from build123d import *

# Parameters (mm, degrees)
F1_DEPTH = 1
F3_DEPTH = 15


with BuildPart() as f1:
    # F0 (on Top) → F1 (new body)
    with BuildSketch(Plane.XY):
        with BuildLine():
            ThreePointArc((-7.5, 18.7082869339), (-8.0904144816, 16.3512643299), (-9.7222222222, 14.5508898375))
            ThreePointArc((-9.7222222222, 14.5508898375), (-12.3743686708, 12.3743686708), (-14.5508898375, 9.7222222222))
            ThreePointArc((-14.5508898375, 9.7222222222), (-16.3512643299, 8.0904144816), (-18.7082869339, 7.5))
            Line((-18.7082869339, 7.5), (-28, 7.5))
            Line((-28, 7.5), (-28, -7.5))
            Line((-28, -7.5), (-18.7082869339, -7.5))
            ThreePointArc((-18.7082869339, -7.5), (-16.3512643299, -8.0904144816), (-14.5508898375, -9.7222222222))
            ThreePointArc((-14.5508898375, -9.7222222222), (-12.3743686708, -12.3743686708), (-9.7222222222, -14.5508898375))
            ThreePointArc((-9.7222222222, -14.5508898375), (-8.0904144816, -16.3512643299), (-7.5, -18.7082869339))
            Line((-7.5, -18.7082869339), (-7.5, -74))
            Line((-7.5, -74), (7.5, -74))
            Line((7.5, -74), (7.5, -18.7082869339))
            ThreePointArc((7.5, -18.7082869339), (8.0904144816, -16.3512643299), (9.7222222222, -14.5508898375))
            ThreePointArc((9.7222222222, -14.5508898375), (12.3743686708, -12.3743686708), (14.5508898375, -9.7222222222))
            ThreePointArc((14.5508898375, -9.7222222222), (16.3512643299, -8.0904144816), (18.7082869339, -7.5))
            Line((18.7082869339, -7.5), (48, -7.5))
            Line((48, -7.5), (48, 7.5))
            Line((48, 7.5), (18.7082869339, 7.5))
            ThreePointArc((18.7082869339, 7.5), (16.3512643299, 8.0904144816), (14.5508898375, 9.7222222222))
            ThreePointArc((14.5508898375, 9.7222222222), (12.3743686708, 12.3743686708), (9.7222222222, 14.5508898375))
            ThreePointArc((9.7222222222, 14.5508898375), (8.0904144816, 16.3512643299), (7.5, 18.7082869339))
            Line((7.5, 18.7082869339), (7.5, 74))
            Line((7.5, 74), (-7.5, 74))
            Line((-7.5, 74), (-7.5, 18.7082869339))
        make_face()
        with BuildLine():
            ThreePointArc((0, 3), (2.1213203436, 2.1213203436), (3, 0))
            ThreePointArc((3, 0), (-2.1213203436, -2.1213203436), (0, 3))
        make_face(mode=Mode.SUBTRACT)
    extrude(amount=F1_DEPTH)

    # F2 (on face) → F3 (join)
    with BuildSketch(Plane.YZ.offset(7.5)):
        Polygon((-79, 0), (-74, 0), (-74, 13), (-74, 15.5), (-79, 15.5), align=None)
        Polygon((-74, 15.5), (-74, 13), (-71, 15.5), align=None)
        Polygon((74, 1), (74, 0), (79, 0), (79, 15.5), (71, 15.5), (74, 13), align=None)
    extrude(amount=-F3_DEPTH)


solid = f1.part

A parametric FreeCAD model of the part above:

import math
import FreeCAD as App
import Part
import Sketcher

V = App.Vector
Q = App.Units.Quantity


def add_polygon(sketch, points):
    """Adds a closed chain of lines whose ends are joined by coincident constraints."""
    first, n = sketch.GeometryCount, len(points)
    for a, b in zip(points, points[1:] + points[:1]):
        sketch.addGeometry(Part.LineSegment(App.Vector(*a, 0), App.Vector(*b, 0)), False)
    for i in range(n):
        sketch.addConstraint(Sketcher.Constraint("Coincident", first + i, 2, first + (i + 1) % n, 1))

doc = App.newDocument("Part")
body = doc.addObject("PartDesign::Body", "Body")

sketch1 = doc.addObject("Sketcher::SketchObject", "Sketch")
body.addObject(sketch1)
sketch1.AttachmentSupport = (doc.XY_Plane, [""])
sketch1.MapMode = "FlatFace"
sketch1.addGeometry(Part.ArcOfCircle(Part.Circle(V(-12.5, 18.708287, 0), V(0, 0, 1), 5), math.radians(-56.251011), math.radians(0)), False)
sketch1.addGeometry(Part.ArcOfCircle(Part.Circle(V(0, 0, 0), V(0, 0, 1), 17.5), math.radians(123.748989), math.radians(146.251011)), False)
sketch1.addGeometry(Part.ArcOfCircle(Part.Circle(V(-18.708287, 12.5, 0), V(0, 0, 1), 5), math.radians(-90), math.radians(-33.748989)), False)
sketch1.addGeometry(Part.LineSegment(V(-18.708287, 7.5, 0), V(-28, 7.5, 0)), False)
sketch1.addGeometry(Part.LineSegment(V(-28, 7.5, 0), V(-28, -7.5, 0)), False)
sketch1.addGeometry(Part.LineSegment(V(-28, -7.5, 0), V(-18.708287, -7.5, 0)), False)
sketch1.addGeometry(Part.ArcOfCircle(Part.Circle(V(-18.708287, -12.5, 0), V(0, 0, 1), 5), math.radians(33.748989), math.radians(90)), False)
sketch1.addGeometry(Part.ArcOfCircle(Part.Circle(V(0, 0, 0), V(0, 0, 1), 17.5), math.radians(-146.251011), math.radians(-123.748989)), False)
sketch1.addGeometry(Part.ArcOfCircle(Part.Circle(V(-12.5, -18.708287, 0), V(0, 0, 1), 5), math.radians(0), math.radians(56.251011)), False)
sketch1.addGeometry(Part.LineSegment(V(-7.5, -18.708287, 0), V(-7.5, -74, 0)), False)
sketch1.addGeometry(Part.LineSegment(V(-7.5, -74, 0), V(7.5, -74, 0)), False)
sketch1.addGeometry(Part.LineSegment(V(7.5, -74, 0), V(7.5, -18.708287, 0)), False)
sketch1.addGeometry(Part.ArcOfCircle(Part.Circle(V(12.5, -18.708287, 0), V(0, 0, 1), 5), math.radians(123.748989), math.radians(180)), False)
sketch1.addGeometry(Part.ArcOfCircle(Part.Circle(V(0, 0, 0), V(0, 0, 1), 17.5), math.radians(-56.251011), math.radians(-33.748989)), False)
sketch1.addGeometry(Part.ArcOfCircle(Part.Circle(V(18.708287, -12.5, 0), V(0, 0, 1), 5), math.radians(90), math.radians(146.251011)), False)
sketch1.addGeometry(Part.LineSegment(V(18.708287, -7.5, 0), V(48, -7.5, 0)), False)
sketch1.addGeometry(Part.LineSegment(V(48, -7.5, 0), V(48, 7.5, 0)), False)
sketch1.addGeometry(Part.LineSegment(V(48, 7.5, 0), V(18.708287, 7.5, 0)), False)
sketch1.addGeometry(Part.ArcOfCircle(Part.Circle(V(18.708287, 12.5, 0), V(0, 0, 1), 5), math.radians(-146.251011), math.radians(-90)), False)
sketch1.addGeometry(Part.ArcOfCircle(Part.Circle(V(0, 0, 0), V(0, 0, 1), 17.5), math.radians(33.748989), math.radians(56.251011)), False)
sketch1.addGeometry(Part.ArcOfCircle(Part.Circle(V(12.5, 18.708287, 0), V(0, 0, 1), 5), math.radians(180), math.radians(236.251011)), False)
sketch1.addGeometry(Part.LineSegment(V(7.5, 18.708287, 0), V(7.5, 74, 0)), False)
sketch1.addGeometry(Part.LineSegment(V(7.5, 74, 0), V(-7.5, 74, 0)), False)
sketch1.addGeometry(Part.LineSegment(V(-7.5, 74, 0), V(-7.5, 18.708287, 0)), False)
sketch1.addGeometry(Part.ArcOfCircle(Part.Circle(V(0, 0, 0), V(0, 0, 1), 3), math.radians(90), math.radians(360)), False)
sketch1.addGeometry(Part.ArcOfCircle(Part.Circle(V(0, 0, 0), V(0, 0, 1), 3), math.radians(0), math.radians(90)), False)
sketch1.addConstraint(Sketcher.Constraint("Tangent", 0, 1, 1, 1))
sketch1.addConstraint(Sketcher.Constraint("Tangent", 1, 2, 2, 2))
sketch1.addConstraint(Sketcher.Constraint("Tangent", 2, 1, 3, 1))
sketch1.addConstraint(Sketcher.Constraint("Coincident", 3, 2, 4, 1))
sketch1.addConstraint(Sketcher.Constraint("Coincident", 4, 2, 5, 1))
sketch1.addConstraint(Sketcher.Constraint("Tangent", 5, 2, 6, 2))
sketch1.addConstraint(Sketcher.Constraint("Tangent", 6, 1, 7, 1))
sketch1.addConstraint(Sketcher.Constraint("Tangent", 7, 2, 8, 2))
sketch1.addConstraint(Sketcher.Constraint("Tangent", 8, 1, 9, 1))
sketch1.addConstraint(Sketcher.Constraint("Coincident", 9, 2, 10, 1))
sketch1.addConstraint(Sketcher.Constraint("Coincident", 10, 2, 11, 1))
sketch1.addConstraint(Sketcher.Constraint("Tangent", 11, 2, 12, 2))
sketch1.addConstraint(Sketcher.Constraint("Tangent", 12, 1, 13, 1))
sketch1.addConstraint(Sketcher.Constraint("Tangent", 13, 2, 14, 2))
sketch1.addConstraint(Sketcher.Constraint("Tangent", 14, 1, 15, 1))
sketch1.addConstraint(Sketcher.Constraint("Coincident", 15, 2, 16, 1))
sketch1.addConstraint(Sketcher.Constraint("Coincident", 16, 2, 17, 1))
sketch1.addConstraint(Sketcher.Constraint("Tangent", 17, 2, 18, 2))
sketch1.addConstraint(Sketcher.Constraint("Tangent", 18, 1, 19, 1))
sketch1.addConstraint(Sketcher.Constraint("Tangent", 19, 2, 20, 2))
sketch1.addConstraint(Sketcher.Constraint("Tangent", 20, 1, 21, 1))
sketch1.addConstraint(Sketcher.Constraint("Coincident", 21, 2, 22, 1))
sketch1.addConstraint(Sketcher.Constraint("Coincident", 22, 2, 23, 1))
sketch1.addConstraint(Sketcher.Constraint("Tangent", 23, 2, 0, 2))
sketch1.addConstraint(Sketcher.Constraint("Tangent", 24, 1, 25, 2))
sketch1.addConstraint(Sketcher.Constraint("Coincident", 25, 1, 24, 2))
sketch1.addConstraint(Sketcher.Constraint("Horizontal", 3))
sketch1.addConstraint(Sketcher.Constraint("Vertical", 4))
sketch1.addConstraint(Sketcher.Constraint("Horizontal", 5))
sketch1.addConstraint(Sketcher.Constraint("Vertical", 9))
sketch1.addConstraint(Sketcher.Constraint("Horizontal", 10))
sketch1.addConstraint(Sketcher.Constraint("Vertical", 11))
sketch1.addConstraint(Sketcher.Constraint("Horizontal", 15))
sketch1.addConstraint(Sketcher.Constraint("Vertical", 16))
sketch1.addConstraint(Sketcher.Constraint("Horizontal", 17))
sketch1.addConstraint(Sketcher.Constraint("Vertical", 21))
sketch1.addConstraint(Sketcher.Constraint("Horizontal", 22))
sketch1.addConstraint(Sketcher.Constraint("Vertical", 23))
sketch1.addConstraint(Sketcher.Constraint("Coincident", 1, 3, -1, 1))
sketch1.addConstraint(Sketcher.Constraint("Coincident", 7, 3, -1, 1))
sketch1.addConstraint(Sketcher.Constraint("Coincident", 13, 3, -1, 1))
sketch1.addConstraint(Sketcher.Constraint("Coincident", 19, 3, -1, 1))
sketch1.addConstraint(Sketcher.Constraint("Coincident", 24, 3, -1, 1))
sketch1.addConstraint(Sketcher.Constraint("Equal", 0, 2))
sketch1.addConstraint(Sketcher.Constraint("Equal", 2, 6))
sketch1.addConstraint(Sketcher.Constraint("Equal", 1, 7))
sketch1.addConstraint(Sketcher.Constraint("Equal", 6, 8))
sketch1.addConstraint(Sketcher.Constraint("Equal", 8, 12))
sketch1.addConstraint(Sketcher.Constraint("Equal", 7, 13))
sketch1.addConstraint(Sketcher.Constraint("Equal", 12, 14))
sketch1.addConstraint(Sketcher.Constraint("Equal", 14, 18))
sketch1.addConstraint(Sketcher.Constraint("Equal", 13, 19))
sketch1.addConstraint(Sketcher.Constraint("Equal", 18, 20))
sketch1.addConstraint(Sketcher.Constraint("Symmetric", 9, 2, 21, 2, -1, 1))
sketch1.addConstraint(Sketcher.Constraint("PointOnObject", 24, 1, -2))
sketch1.addConstraint(Sketcher.Constraint("PointOnObject", 25, 1, -1))
sketch1.addConstraint(Sketcher.Constraint("Horizontal", 8, 3, 12, 3))
sketch1.addConstraint(Sketcher.Constraint("Horizontal", 6, 3, 14, 3))
sketch1.addConstraint(Sketcher.Constraint("Horizontal", 2, 3, 18, 3))
sketch1.addConstraint(Sketcher.Constraint("Horizontal", 0, 3, 20, 3))
sketch1.addConstraint(Sketcher.Constraint("Vertical", 2, 3, 6, 3))
sketch1.addConstraint(Sketcher.Constraint("Equal", 22, 4))
sketch1.addConstraint(Sketcher.Constraint("Radius", 0, Q("5 mm")))
sketch1.addConstraint(Sketcher.Constraint("Radius", 24, Q("3 mm")))
sketch1.addConstraint(Sketcher.Constraint("Radius", 1, Q("17.5 mm")))
sketch1.addConstraint(Sketcher.Constraint("DistanceX", 10, 1, 10, 2, Q("15 mm")))
sketch1.addConstraint(Sketcher.Constraint("DistanceX", 3, 2, -1, 1, Q("28 mm")))
sketch1.addConstraint(Sketcher.Constraint("DistanceY", 9, 2, -1, 1, Q("74 mm")))
sketch1.addConstraint(Sketcher.Constraint("DistanceX", -1, 1, 15, 2, Q("48 mm")))
pad1 = doc.addObject("PartDesign::Pad", "Pad")
body.addObject(pad1)
pad1.Profile = sketch1
pad1.Length = 1

sketch2 = doc.addObject("Sketcher::SketchObject", "Sketch001")
body.addObject(sketch2)
sketch2.AttachmentSupport = (doc.YZ_Plane, [""])
sketch2.MapMode = "FlatFace"
sketch2.AttachmentOffset = App.Placement(V(0, 0, 7.5), App.Rotation())
add_polygon(sketch2, [(-79, 0), (-74, 0), (-74, 13), (-71, 15.5), (-79, 15.5)])
add_polygon(sketch2, [(74, 0), (79, 0), (79, 15.5), (71, 15.5), (74, 13)])
sketch2.addConstraint(Sketcher.Constraint("Horizontal", 0))
sketch2.addConstraint(Sketcher.Constraint("Vertical", 1))
sketch2.addConstraint(Sketcher.Constraint("Horizontal", 3))
sketch2.addConstraint(Sketcher.Constraint("Vertical", 4))
sketch2.addConstraint(Sketcher.Constraint("Horizontal", 5))
sketch2.addConstraint(Sketcher.Constraint("Vertical", 6))
sketch2.addConstraint(Sketcher.Constraint("Horizontal", 7))
sketch2.addConstraint(Sketcher.Constraint("Vertical", 9))
sketch2.addConstraint(Sketcher.Constraint("Symmetric", 4, 2, 5, 2, -1, 1))
sketch2.addConstraint(Sketcher.Constraint("Symmetric", 2, 2, 7, 2, -2))
sketch2.addConstraint(Sketcher.Constraint("Symmetric", 1, 2, 8, 2, -2))
sketch2.addConstraint(Sketcher.Constraint("PointOnObject", 0, 2, -1))
sketch2.addConstraint(Sketcher.Constraint("DistanceX", 0, 1, 0, 2, Q("5 mm")))
sketch2.addConstraint(Sketcher.Constraint("DistanceX", 3, 2, 3, 1, Q("8 mm")))
sketch2.addConstraint(Sketcher.Constraint("DistanceY", 1, 1, 1, 2, Q("13 mm")))
sketch2.addConstraint(Sketcher.Constraint("DistanceY", 4, 2, 4, 1, Q("15.5 mm")))
sketch2.addConstraint(Sketcher.Constraint("DistanceX", 0, 2, -1, 1, Q("74 mm")))
pad2 = doc.addObject("PartDesign::Pad", "Pad001")
body.addObject(pad2)
pad2.Profile = sketch2
pad2.Length = 15
pad2.Reversed = True

doc.recompute()
